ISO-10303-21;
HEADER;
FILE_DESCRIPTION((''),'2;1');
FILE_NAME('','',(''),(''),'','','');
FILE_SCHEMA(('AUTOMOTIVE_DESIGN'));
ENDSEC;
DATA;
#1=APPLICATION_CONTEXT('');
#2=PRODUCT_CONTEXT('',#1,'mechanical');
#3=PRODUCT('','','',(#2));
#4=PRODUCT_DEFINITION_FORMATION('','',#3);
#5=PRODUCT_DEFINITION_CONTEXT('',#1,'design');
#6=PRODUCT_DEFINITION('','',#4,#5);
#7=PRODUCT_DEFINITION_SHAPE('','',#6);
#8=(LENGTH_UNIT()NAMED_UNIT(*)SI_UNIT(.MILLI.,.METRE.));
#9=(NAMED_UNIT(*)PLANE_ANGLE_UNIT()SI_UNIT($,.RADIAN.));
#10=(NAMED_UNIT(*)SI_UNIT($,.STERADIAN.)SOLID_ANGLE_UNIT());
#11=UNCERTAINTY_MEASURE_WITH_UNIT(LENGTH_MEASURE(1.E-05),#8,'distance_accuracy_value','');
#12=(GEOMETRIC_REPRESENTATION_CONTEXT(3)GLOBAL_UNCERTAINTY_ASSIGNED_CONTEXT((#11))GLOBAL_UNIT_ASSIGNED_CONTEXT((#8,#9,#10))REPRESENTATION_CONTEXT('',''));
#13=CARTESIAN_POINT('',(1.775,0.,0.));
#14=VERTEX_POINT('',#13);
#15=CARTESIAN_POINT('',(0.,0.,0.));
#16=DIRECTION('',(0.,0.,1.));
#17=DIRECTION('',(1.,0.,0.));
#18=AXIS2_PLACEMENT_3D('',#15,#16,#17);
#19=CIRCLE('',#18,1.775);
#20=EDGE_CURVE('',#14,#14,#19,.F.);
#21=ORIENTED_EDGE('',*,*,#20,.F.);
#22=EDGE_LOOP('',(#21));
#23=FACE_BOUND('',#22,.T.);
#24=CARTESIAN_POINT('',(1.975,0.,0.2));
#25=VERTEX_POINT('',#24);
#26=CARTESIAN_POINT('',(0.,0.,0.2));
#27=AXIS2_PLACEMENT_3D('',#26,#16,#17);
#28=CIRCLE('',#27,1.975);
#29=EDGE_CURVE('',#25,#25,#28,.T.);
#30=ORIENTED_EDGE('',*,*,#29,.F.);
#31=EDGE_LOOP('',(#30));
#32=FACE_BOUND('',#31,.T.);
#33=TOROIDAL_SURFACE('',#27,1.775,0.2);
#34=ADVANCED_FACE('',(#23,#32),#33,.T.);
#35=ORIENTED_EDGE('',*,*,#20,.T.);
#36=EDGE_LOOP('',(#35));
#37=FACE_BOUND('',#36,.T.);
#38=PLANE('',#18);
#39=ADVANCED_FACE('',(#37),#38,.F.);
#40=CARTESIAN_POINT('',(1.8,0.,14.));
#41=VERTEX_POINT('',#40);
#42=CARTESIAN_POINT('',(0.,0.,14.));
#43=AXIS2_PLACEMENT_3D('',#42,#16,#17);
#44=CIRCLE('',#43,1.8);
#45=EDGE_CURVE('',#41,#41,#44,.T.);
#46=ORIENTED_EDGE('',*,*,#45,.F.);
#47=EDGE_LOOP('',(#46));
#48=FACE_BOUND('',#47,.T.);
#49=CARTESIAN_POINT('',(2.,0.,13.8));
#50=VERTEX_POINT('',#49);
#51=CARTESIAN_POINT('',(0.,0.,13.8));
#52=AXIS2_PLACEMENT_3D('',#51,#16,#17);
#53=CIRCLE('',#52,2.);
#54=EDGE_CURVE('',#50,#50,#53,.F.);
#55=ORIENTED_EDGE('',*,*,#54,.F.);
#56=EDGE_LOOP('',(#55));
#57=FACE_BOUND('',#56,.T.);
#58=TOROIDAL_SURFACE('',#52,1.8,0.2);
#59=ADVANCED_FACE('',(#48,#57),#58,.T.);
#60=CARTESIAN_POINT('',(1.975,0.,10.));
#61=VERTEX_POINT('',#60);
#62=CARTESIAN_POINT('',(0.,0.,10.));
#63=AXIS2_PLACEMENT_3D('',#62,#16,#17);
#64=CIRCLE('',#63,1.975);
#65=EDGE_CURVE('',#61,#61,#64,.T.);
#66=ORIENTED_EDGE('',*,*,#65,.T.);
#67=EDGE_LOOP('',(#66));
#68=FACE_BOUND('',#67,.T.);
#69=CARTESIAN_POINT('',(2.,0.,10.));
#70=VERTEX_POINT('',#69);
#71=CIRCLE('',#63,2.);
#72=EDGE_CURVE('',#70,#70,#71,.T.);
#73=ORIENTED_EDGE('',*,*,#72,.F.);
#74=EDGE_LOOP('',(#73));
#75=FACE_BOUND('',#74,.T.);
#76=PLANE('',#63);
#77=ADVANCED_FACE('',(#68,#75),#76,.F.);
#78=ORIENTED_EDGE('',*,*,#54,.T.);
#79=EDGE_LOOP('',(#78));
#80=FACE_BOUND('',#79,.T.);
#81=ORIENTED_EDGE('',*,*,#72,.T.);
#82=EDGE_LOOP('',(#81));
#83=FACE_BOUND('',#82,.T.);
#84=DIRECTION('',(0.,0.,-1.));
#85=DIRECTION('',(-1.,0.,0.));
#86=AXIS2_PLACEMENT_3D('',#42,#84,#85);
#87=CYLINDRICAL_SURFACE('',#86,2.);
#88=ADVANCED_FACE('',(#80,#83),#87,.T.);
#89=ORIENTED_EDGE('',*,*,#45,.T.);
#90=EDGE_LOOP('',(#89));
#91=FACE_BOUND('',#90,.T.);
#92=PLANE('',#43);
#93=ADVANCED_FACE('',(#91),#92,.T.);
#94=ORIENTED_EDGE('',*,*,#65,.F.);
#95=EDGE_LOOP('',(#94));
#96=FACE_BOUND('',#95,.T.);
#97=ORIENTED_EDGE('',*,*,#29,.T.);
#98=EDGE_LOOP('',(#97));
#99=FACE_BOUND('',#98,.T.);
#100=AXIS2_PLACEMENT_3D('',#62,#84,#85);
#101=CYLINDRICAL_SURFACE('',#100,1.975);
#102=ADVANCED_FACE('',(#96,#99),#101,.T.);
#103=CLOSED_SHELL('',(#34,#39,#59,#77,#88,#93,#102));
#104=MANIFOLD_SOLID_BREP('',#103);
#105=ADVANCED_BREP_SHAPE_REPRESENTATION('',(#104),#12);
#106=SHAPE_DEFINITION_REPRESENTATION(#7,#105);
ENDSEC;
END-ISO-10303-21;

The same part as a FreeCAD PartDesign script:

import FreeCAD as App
import Part
import Sketcher
Q = App.Units.Quantity


def edges_at(feature, points):
    """Names of the edges that pass closest to the given points."""
    edges = feature.Shape.Edges
    near = lambda p: min(range(len(edges)), key=lambda i: edges[i].distToShape(Part.Vertex(*p))[0])
    return sorted({f"Edge{near(p) + 1}" for p in points})

doc = App.newDocument("Part")
params = doc.addObject("Spreadsheet::Sheet", "Params")
for row, (alias, value) in enumerate([
    ("sketch1_diameter", "3.95 mm"),
    ("pad1_length", "10 mm"),
    ("fillet_radius", "0.2 mm"),
    ("sketch2_diameter", "4 mm"),
    ("pad2_length", "4 mm"),
    ("fillet2_radius", "0.2 mm"),
], start=1):
    params.set(f"A{row}", alias)
    params.set(f"B{row}", "=" + value)
    params.setAlias(f"B{row}", alias)

body = doc.addObject("PartDesign::Body", "Body")

# Sketch on XY plane
sketch1 = doc.addObject("Sketcher::SketchObject", "Sketch")
body.addObject(sketch1)
sketch1.AttachmentSupport = (doc.XY_Plane, [""])
sketch1.MapMode = "FlatFace"
sketch1.addGeometry(Part.Circle(App.Vector(0, 0, 0), App.Vector(0, 0, 1), 1.975), False)
sketch1.addConstraint(Sketcher.Constraint("Coincident", 0, 3, -1, 1))
sketch1.addConstraint(Sketcher.Constraint("Diameter", 0, Q("3.95 mm")))
sketch1.setExpression("Constraints[1]", "Params.sketch1_diameter")
pad1 = doc.addObject("PartDesign::Pad", "Pad")
body.addObject(pad1)
pad1.Profile = sketch1
pad1.setExpression("Length", "Params.pad1_length")
doc.recompute()

fillet = doc.addObject("PartDesign::Fillet", "Fillet")
body.addObject(fillet)
fillet.Base = (pad1, edges_at(pad1, [(-1.975, 0, 0)]))
fillet.setExpression("Radius", "Params.fillet_radius")

# Sketch on XY plane
sketch2 = doc.addObject("Sketcher::SketchObject", "Sketch001")
body.addObject(sketch2)
sketch2.AttachmentSupport = (doc.XY_Plane, [""])
sketch2.MapMode = "FlatFace"
sketch2.AttachmentOffset = App.Placement(App.Vector(0, 0, 10), App.Rotation())
sketch2.addGeometry(Part.Circle(App.Vector(0, 0, 0), App.Vector(0, 0, 1), 2), False)
sketch2.addConstraint(Sketcher.Constraint("Coincident", 0, 3, -1, 1))
sketch2.addConstraint(Sketcher.Constraint("Diameter", 0, Q("4 mm")))
sketch2.setExpression("Constraints[1]", "Params.sketch2_diameter")
pad2 = doc.addObject("PartDesign::Pad", "Pad001")
body.addObject(pad2)
pad2.Profile = sketch2
pad2.setExpression("Length", "Params.pad2_length")
doc.recompute()

fillet2 = doc.addObject("PartDesign::Fillet", "Fillet001")
body.addObject(fillet2)
fillet2.Base = (pad2, edges_at(pad2, [(-2, 0, 14)]))
fillet2.setExpression("Radius", "Params.fillet2_radius")

doc.recompute()
